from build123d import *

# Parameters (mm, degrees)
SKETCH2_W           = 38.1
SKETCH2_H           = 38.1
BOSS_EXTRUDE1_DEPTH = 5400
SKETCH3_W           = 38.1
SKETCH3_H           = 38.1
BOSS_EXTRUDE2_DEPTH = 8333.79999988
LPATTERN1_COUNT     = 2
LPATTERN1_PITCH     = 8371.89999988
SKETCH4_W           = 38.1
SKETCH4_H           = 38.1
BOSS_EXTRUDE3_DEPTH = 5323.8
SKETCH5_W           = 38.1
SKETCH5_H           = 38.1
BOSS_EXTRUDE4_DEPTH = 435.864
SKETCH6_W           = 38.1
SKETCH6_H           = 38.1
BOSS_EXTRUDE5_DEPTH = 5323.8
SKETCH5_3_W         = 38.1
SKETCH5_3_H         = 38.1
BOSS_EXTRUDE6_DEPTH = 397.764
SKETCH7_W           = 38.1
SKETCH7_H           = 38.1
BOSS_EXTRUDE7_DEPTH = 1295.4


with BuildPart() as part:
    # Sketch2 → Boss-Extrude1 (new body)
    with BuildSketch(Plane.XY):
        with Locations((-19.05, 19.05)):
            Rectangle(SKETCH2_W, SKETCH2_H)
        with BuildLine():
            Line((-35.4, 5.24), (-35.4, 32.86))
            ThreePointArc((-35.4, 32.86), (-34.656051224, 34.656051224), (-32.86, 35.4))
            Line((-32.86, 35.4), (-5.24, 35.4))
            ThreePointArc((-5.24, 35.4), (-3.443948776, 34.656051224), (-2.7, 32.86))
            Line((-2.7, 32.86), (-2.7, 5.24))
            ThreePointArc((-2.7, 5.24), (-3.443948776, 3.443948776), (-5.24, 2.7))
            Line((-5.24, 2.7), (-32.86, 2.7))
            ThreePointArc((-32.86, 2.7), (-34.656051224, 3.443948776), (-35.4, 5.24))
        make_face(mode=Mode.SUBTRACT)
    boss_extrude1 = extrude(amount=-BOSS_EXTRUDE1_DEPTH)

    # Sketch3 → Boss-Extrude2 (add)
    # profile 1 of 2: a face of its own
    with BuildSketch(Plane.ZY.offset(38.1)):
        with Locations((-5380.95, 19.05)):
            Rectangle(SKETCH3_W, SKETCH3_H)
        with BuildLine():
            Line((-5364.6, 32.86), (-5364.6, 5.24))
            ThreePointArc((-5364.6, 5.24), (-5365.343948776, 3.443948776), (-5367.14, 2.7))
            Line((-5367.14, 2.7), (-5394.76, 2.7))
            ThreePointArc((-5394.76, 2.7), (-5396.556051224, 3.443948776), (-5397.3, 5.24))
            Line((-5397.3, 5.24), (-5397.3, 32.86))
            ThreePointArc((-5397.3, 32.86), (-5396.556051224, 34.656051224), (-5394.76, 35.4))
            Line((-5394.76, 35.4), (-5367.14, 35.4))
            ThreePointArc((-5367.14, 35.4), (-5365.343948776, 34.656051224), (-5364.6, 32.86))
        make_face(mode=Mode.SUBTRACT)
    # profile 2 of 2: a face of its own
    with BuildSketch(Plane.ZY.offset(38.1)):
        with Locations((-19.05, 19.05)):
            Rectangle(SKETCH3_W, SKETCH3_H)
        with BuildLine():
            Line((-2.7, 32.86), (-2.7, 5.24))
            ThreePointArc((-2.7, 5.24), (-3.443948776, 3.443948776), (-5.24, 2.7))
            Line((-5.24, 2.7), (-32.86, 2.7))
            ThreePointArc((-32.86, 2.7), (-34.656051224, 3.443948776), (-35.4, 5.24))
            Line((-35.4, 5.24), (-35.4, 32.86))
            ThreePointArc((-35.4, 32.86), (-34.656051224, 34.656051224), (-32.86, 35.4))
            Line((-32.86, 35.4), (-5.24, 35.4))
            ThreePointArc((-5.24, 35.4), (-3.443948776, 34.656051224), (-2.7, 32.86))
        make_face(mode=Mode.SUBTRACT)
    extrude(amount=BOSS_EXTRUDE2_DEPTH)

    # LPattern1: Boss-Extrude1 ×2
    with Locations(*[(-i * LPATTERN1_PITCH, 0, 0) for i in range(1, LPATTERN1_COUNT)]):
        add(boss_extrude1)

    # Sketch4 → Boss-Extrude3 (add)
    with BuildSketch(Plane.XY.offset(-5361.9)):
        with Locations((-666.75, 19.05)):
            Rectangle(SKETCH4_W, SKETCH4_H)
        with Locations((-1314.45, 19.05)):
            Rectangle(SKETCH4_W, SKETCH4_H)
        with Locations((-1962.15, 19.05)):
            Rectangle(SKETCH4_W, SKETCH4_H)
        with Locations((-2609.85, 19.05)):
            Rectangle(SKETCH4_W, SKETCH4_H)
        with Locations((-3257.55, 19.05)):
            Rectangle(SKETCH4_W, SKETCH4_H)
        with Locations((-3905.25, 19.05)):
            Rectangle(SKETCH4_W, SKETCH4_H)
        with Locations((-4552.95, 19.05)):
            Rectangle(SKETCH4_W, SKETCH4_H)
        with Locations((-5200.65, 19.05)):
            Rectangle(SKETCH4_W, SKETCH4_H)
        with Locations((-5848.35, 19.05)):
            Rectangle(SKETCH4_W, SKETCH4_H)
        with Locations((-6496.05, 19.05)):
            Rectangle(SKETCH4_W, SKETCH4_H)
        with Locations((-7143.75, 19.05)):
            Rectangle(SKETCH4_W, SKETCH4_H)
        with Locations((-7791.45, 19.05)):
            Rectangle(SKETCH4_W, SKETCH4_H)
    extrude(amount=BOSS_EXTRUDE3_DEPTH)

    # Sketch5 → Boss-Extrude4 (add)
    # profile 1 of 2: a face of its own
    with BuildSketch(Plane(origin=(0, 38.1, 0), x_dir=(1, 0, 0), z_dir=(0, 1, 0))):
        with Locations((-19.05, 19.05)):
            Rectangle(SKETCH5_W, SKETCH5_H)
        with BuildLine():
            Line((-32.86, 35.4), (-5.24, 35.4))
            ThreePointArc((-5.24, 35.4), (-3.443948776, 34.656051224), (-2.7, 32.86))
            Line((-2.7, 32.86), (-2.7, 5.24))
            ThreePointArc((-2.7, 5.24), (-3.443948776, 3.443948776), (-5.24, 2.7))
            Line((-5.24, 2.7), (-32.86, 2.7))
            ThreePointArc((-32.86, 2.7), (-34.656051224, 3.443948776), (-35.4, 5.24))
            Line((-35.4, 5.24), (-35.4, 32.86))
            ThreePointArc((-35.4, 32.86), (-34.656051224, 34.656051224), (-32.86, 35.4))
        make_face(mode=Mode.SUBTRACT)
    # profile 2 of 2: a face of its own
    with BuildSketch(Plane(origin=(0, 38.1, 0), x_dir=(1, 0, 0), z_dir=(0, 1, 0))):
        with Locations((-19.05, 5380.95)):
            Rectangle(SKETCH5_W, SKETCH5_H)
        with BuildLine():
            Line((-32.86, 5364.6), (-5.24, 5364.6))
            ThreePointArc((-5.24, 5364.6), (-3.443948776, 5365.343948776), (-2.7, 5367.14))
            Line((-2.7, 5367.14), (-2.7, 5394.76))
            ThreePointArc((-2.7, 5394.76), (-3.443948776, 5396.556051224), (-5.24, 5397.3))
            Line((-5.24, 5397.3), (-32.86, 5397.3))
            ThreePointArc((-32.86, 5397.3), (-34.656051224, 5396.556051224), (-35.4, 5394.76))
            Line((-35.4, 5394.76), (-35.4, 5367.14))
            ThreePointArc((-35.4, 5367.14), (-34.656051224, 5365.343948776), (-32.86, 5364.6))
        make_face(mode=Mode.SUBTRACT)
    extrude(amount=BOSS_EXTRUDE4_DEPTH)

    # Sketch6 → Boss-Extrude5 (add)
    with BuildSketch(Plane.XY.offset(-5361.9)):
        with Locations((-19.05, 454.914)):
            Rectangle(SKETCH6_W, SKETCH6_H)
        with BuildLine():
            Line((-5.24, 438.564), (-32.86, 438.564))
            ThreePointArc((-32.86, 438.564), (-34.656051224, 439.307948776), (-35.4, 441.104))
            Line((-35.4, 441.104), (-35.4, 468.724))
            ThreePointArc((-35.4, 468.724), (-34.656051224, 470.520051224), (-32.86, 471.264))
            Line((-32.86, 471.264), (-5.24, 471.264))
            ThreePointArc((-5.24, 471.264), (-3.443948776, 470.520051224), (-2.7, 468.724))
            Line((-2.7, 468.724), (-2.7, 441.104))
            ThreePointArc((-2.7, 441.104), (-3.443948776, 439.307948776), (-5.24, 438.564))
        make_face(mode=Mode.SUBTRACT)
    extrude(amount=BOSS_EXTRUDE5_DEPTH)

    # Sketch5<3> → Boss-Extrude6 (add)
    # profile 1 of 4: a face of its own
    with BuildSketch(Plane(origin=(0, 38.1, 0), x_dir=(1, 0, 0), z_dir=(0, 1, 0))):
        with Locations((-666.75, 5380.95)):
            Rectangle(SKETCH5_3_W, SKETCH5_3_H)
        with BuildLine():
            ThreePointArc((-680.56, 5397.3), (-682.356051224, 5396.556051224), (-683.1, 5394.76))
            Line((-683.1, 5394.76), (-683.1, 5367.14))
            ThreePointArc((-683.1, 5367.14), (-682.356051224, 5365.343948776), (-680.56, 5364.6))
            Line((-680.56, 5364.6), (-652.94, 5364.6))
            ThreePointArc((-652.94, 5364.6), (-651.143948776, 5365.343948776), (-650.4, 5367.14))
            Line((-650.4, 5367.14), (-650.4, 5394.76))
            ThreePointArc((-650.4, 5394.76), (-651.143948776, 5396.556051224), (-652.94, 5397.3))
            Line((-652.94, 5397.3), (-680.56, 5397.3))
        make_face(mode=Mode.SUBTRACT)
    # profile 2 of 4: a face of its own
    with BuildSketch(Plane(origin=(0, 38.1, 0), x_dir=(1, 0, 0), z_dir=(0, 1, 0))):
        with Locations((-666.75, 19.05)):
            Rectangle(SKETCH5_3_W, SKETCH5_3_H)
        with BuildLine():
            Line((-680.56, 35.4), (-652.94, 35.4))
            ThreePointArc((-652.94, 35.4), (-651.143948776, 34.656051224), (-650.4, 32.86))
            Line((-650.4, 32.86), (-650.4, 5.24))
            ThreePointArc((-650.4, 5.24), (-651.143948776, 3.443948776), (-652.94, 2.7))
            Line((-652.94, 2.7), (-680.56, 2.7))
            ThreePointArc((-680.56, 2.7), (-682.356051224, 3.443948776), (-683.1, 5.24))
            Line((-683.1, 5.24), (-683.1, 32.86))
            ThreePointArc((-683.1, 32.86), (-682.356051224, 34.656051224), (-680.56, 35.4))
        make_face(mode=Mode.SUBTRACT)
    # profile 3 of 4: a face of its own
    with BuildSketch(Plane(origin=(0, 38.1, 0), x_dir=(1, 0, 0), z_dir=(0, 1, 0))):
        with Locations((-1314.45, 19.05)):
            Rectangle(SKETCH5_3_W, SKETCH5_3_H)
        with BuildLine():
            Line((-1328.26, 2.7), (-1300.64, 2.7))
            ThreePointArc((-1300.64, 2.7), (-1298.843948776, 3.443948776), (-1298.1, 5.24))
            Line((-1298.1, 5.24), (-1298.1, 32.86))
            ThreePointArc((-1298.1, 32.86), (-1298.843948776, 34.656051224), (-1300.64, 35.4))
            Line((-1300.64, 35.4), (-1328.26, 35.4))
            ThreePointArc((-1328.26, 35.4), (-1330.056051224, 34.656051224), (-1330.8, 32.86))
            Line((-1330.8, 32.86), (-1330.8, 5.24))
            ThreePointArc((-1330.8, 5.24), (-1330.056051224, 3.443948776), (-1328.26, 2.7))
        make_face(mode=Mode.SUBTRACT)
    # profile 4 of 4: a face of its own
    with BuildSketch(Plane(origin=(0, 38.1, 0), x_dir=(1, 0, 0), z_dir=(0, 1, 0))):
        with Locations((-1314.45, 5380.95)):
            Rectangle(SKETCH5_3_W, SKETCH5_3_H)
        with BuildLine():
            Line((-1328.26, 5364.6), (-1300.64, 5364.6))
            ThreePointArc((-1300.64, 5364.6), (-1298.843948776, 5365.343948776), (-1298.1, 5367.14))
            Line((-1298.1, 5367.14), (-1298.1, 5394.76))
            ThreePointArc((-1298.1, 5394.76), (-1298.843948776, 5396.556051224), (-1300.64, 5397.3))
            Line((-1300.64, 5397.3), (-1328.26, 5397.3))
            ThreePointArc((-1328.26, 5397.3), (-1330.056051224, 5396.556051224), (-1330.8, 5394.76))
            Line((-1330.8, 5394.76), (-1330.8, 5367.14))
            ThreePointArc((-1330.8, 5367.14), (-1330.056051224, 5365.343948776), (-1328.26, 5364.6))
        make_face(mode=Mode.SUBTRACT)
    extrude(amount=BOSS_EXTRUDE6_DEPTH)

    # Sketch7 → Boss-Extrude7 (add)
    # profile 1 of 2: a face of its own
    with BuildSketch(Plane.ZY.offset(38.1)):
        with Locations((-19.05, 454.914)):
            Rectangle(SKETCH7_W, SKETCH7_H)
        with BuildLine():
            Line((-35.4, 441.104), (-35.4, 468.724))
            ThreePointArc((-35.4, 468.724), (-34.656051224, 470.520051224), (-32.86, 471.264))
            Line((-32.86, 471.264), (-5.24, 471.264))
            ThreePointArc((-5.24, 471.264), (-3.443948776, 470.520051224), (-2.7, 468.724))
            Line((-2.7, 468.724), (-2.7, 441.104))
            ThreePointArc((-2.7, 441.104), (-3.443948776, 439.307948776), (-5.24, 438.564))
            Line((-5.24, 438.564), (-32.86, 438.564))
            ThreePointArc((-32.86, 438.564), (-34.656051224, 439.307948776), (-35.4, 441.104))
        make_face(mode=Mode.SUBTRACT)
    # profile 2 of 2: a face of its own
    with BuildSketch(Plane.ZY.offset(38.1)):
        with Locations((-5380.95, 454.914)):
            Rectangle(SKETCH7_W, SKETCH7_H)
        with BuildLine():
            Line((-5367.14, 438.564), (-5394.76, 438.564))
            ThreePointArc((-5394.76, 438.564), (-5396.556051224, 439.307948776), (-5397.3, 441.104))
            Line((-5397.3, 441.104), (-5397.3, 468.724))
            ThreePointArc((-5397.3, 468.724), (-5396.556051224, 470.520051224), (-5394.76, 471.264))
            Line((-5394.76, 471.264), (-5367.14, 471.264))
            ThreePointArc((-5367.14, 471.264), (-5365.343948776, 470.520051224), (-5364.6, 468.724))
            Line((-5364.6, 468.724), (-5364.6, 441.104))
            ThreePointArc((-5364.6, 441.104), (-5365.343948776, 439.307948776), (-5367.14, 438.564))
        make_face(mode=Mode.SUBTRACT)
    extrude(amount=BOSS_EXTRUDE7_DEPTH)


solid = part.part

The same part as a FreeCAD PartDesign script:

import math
import FreeCAD as App
import Part
import Sketcher
from FreeCAD import Vector
Q = App.Units.Quantity


def add_polygon(sketch, points):
    """Adds a closed chain of lines whose ends are joined by coincident constraints."""
    first, n = sketch.GeometryCount, len(points)
    for a, b in zip(points, points[1:] + points[:1]):
        sketch.addGeometry(Part.LineSegment(App.Vector(*a, 0), App.Vector(*b, 0)), False)
    for i in range(n):
        sketch.addConstraint(Sketcher.Constraint("Coincident", first + i, 2, first + (i + 1) % n, 1))

doc = App.newDocument("Part")
body = doc.addObject("PartDesign::Body", "Body")

sketch1 = body.newObject("Sketcher::SketchObject", "Sketch")
sketch1.AttachmentSupport = (doc.getObject("XY_Plane"), [""])
sketch1.MapMode = "FlatFace"
add_polygon(sketch1, [(-38.1, 38.1), (-38.1, 0), (0, 0), (0, 38.1)])
sketch1.addGeometry(Part.ArcOfCircle(Part.Circle(Vector(-32.9, 5.2, 0), Vector(0, 0, 1), 2.5), math.radians(-180), math.radians(-90)), False)
sketch1.addGeometry(Part.LineSegment(Vector(-35.4, 5.2, 0), Vector(-35.4, 32.9, 0)), False)
sketch1.addGeometry(Part.ArcOfCircle(Part.Circle(Vector(-32.9, 32.9, 0), Vector(0, 0, 1), 2.5), math.radians(90), math.radians(180)), False)
sketch1.addGeometry(Part.LineSegment(Vector(-32.9, 35.4, 0), Vector(-5.2, 35.4, 0)), False)
sketch1.addGeometry(Part.ArcOfCircle(Part.Circle(Vector(-5.2, 32.9, 0), Vector(0, 0, 1), 2.5), math.radians(0), math.radians(90)), False)
sketch1.addGeometry(Part.LineSegment(Vector(-2.7, 32.9, 0), Vector(-2.7, 5.2, 0)), False)
sketch1.addGeometry(Part.ArcOfCircle(Part.Circle(Vector(-5.2, 5.2, 0), Vector(0, 0, 1), 2.5), math.radians(-90), math.radians(0)), False)
sketch1.addGeometry(Part.LineSegment(Vector(-5.2, 2.7, 0), Vector(-32.9, 2.7, 0)), False)
sketch1.addConstraint([
    Sketcher.Constraint("Tangent", 4, 1, 5, 1),
    Sketcher.Constraint("Tangent", 5, 2, 6, 2),
    Sketcher.Constraint("Tangent", 6, 1, 7, 1),
    Sketcher.Constraint("Tangent", 7, 2, 8, 2),
    Sketcher.Constraint("Tangent", 8, 1, 9, 1),
    Sketcher.Constraint("Tangent", 9, 2, 10, 2),
    Sketcher.Constraint("Tangent", 10, 1, 11, 1),
    Sketcher.Constraint("Tangent", 11, 2, 4, 2),
    Sketcher.Constraint("Vertical", 0),
    Sketcher.Constraint("Horizontal", 1),
    Sketcher.Constraint("Vertical", 2),
    Sketcher.Constraint("Horizontal", 3),
    Sketcher.Constraint("Vertical", 5),
    Sketcher.Constraint("Horizontal", 7),
    Sketcher.Constraint("Vertical", 9),
    Sketcher.Constraint("Horizontal", 11),
    Sketcher.Constraint("Coincident", 1, 2, -1, 1),
    Sketcher.Constraint("Equal", 4, 6),
    Sketcher.Constraint("Equal", 6, 8),
    Sketcher.Constraint("Equal", 8, 10),
    Sketcher.Constraint("Equal", 3, 0),
    Sketcher.Constraint("Equal", 11, 5),
    Sketcher.Constraint("Radius", 4, Q("0.1 in")),
    Sketcher.Constraint("DistanceX", 1, 1, 1, 2, Q("1.5 in")),
    Sketcher.Constraint("DistanceX", 7, 1, 7, 2, Q("27.62 mm")),
    Sketcher.Constraint("DistanceX", 4, 3, -1, 1, Q("32.86 mm")),
    Sketcher.Constraint("DistanceY", -1, 1, 4, 3, Q("5.24 mm")),
])
pad1 = body.newObject("PartDesign::Pad", "Pad")
pad1.Profile = sketch1
pad1.Length = 5400
pad1.Reversed = True

sketch2 = body.newObject("Sketcher::SketchObject", "Sketch001")
sketch2.AttachmentSupport = (doc.getObject("YZ_Plane"), [""])
sketch2.MapMode = "FlatFace"
sketch2.AttachmentOffset = App.Placement(Vector(0, 0, -1.5 * 25.4), App.Rotation())
add_polygon(sketch2, [(38.1, -5400), (0, -5400), (0, -5361.9), (38.1, -5361.9)])
sketch2.addGeometry(Part.ArcOfCircle(Part.Circle(Vector(32.9, -5367.1, 0), Vector(0, 0, 1), 2.5), math.radians(0), math.radians(90)), False)
sketch2.addGeometry(Part.LineSegment(Vector(32.9, -5364.6, 0), Vector(5.2, -5364.6, 0)), False)
sketch2.addGeometry(Part.ArcOfCircle(Part.Circle(Vector(5.2, -5367.1, 0), Vector(0, 0, 1), 2.5), math.radians(90), math.radians(180)), False)
sketch2.addGeometry(Part.LineSegment(Vector(2.7, -5367.1, 0), Vector(2.7, -5394.8, 0)), False)
sketch2.addGeometry(Part.ArcOfCircle(Part.Circle(Vector(5.2, -5394.8, 0), Vector(0, 0, 1), 2.5), math.radians(-180), math.radians(-90)), False)
sketch2.addGeometry(Part.LineSegment(Vector(5.2, -5397.3, 0), Vector(32.9, -5397.3, 0)), False)
sketch2.addGeometry(Part.ArcOfCircle(Part.Circle(Vector(32.9, -5394.8, 0), Vector(0, 0, 1), 2.5), math.radians(-90), math.radians(0)), False)
sketch2.addGeometry(Part.LineSegment(Vector(35.4, -5394.8, 0), Vector(35.4, -5367.1, 0)), False)
add_polygon(sketch2, [(38.1, -38.1), (0, -38.1), (0, 0), (38.1, 0)])
sketch2.addGeometry(Part.ArcOfCircle(Part.Circle(Vector(32.9, -5.2, 0), Vector(0, 0, 1), 2.5), math.radians(0), math.radians(90)), False)
sketch2.addGeometry(Part.LineSegment(Vector(32.9, -2.7, 0), Vector(5.2, -2.7, 0)), False)
sketch2.addGeometry(Part.ArcOfCircle(Part.Circle(Vector(5.2, -5.2, 0), Vector(0, 0, 1), 2.5), math.radians(90), math.radians(180)), False)
sketch2.addGeometry(Part.LineSegment(Vector(2.7, -5.2, 0), Vector(2.7, -32.9, 0)), False)
sketch2.addGeometry(Part.ArcOfCircle(Part.Circle(Vector(5.2, -32.9, 0), Vector(0, 0, 1), 2.5), math.radians(-180), math.radians(-90)), False)
sketch2.addGeometry(Part.LineSegment(Vector(5.2, -35.4, 0), Vector(32.9, -35.4, 0)), False)
sketch2.addGeometry(Part.ArcOfCircle(Part.Circle(Vector(32.9, -32.9, 0), Vector(0, 0, 1), 2.5), math.radians(-90), math.radians(0)), False)
sketch2.addGeometry(Part.LineSegment(Vector(35.4, -32.9, 0), Vector(35.4, -5.2, 0)), False)
sketch2.addConstraint([
    Sketcher.Constraint("Tangent", 4, 2, 5, 1),
    Sketcher.Constraint("Tangent", 5, 2, 6, 1),
    Sketcher.Constraint("Tangent", 6, 2, 7, 1),
    Sketcher.Constraint("Tangent", 7, 2, 8, 1),
    Sketcher.Constraint("Tangent", 8, 2, 9, 1),
    Sketcher.Constraint("Tangent", 9, 2, 10, 1),
    Sketcher.Constraint("Tangent", 10, 2, 11, 1),
    Sketcher.Constraint("Tangent", 11, 2, 4, 1),
    Sketcher.Constraint("Tangent", 16, 2, 17, 1),
    Sketcher.Constraint("Tangent", 17, 2, 18, 1),
    Sketcher.Constraint("Tangent", 18, 2, 19, 1),
    Sketcher.Constraint("Tangent", 19, 2, 20, 1),
    Sketcher.Constraint("Tangent", 20, 2, 21, 1),
    Sketcher.Constraint("Tangent", 21, 2, 22, 1),
    Sketcher.Constraint("Tangent", 22, 2, 23, 1),
    Sketcher.Constraint("Tangent", 23, 2, 16, 1),
    Sketcher.Constraint("Horizontal", 0),
    Sketcher.Constraint("Vertical", 1),
    Sketcher.Constraint("Horizontal", 2),
    Sketcher.Constraint("Vertical", 3),
    Sketcher.Constraint("Horizontal", 5),
    Sketcher.Constraint("Vertical", 7),
    Sketcher.Constraint("Horizontal", 9),
    Sketcher.Constraint("Vertical", 11),
    Sketcher.Constraint("Horizontal", 12),
    Sketcher.Constraint("Vertical", 13),
    Sketcher.Constraint("Horizontal", 14),
    Sketcher.Constraint("Vertical", 15),
    Sketcher.Constraint("Horizontal", 17),
    Sketcher.Constraint("Vertical", 19),
    Sketcher.Constraint("Horizontal", 21),
    Sketcher.Constraint("Vertical", 23),
    Sketcher.Constraint("Coincident", 13, 2, -1, 1),
    Sketcher.Constraint("Equal", 4, 6),
    Sketcher.Constraint("Equal", 6, 8),
    Sketcher.Constraint("Equal", 8, 10),
    Sketcher.Constraint("Equal", 10, 16),
    Sketcher.Constraint("Equal", 16, 18),
    Sketcher.Constraint("Equal", 18, 20),
    Sketcher.Constraint("Equal", 20, 22),
    Sketcher.Constraint("PointOnObject", 0, 2, -2),
    Sketcher.Constraint("Vertical", 10, 3, 16, 3),
    Sketcher.Constraint("Vertical", 8, 3, 18, 3),
    Sketcher.Constraint("Vertical", 3, 2, 14, 2),
    Sketcher.Constraint("Equal", 14, 1),
    Sketcher.Constraint("Equal", 21, 7),
    Sketcher.Constraint("Equal", 3, 13),
    Sketcher.Constraint("Equal", 11, 19),
    Sketcher.Constraint("Radius", 4, Q("0.1 in")),
    Sketcher.Constraint("DistanceX", 0, 2, 0, 1, Q("1.5 in")),
    Sketcher.Constraint("DistanceX", 5, 2, 5, 1, Q("27.62 mm")),
    Sketcher.Constraint("DistanceX", -1, 1, 4, 3, Q("32.86 mm")),
    Sketcher.Constraint("DistanceY", 4, 3, -1, 1, Q("5367.14 mm")),
    Sketcher.Constraint("DistanceY", 16, 3, -1, 1, Q("5.24 mm")),
    Sketcher.Constraint("DistanceY", 0, 2, -1, 1, Q("5400 mm")),
])
pad2 = body.newObject("PartDesign::Pad", "Pad001")
pad2.Profile = sketch2
pad2.Length = 8333.8
pad2.Reversed = True
doc.recompute()

linearpattern = body.newObject("PartDesign::LinearPattern", "LinearPattern")
linearpattern.Originals = [pad1]
linearpattern.Direction = (doc.getObject("X_Axis"), [""])
linearpattern.Mode = "offset"
linearpattern.Offset = 8371.9
linearpattern.Occurrences = 2
linearpattern.Reversed = True
body.Tip = linearpattern

sketch3 = body.newObject("Sketcher::SketchObject", "Sketch002")
sketch3.AttachmentSupport = (doc.getObject("XY_Plane"), [""])
sketch3.MapMode = "FlatFace"
sketch3.AttachmentOffset = App.Placement(Vector(0, 0, -5361.9), App.Rotation())
add_polygon(sketch3, [(-686, 38), (-686, 0), (-648, 0), (-648, 38)])
add_polygon(sketch3, [(-1334, 38), (-1334, 0), (-1295, 0), (-1295, 38)])
add_polygon(sketch3, [(-1981, 38), (-1981, 0), (-1943, 0), (-1943, 38)])
add_polygon(sketch3, [(-2629, 38), (-2629, 0), (-2591, 0), (-2591, 38)])
add_polygon(sketch3, [(-3277, 38), (-3277, 0), (-3238, 0), (-3238, 38)])
add_polygon(sketch3, [(-3924, 38), (-3924, 0), (-3886, 0), (-3886, 38)])
add_polygon(sketch3, [(-4572, 38), (-4572, 0), (-4534, 0), (-4534, 38)])
add_polygon(sketch3, [(-5220, 38), (-5220, 0), (-5182, 0), (-5182, 38)])
add_polygon(sketch3, [(-5867, 38), (-5867, 0), (-5829, 0), (-5829, 38)])
add_polygon(sketch3, [(-6515, 38), (-6515, 0), (-6477, 0), (-6477, 38)])
add_polygon(sketch3, [(-7163, 38), (-7163, 0), (-7125, 0), (-7125, 38)])
add_polygon(sketch3, [(-7810, 38), (-7810, 0), (-7772, 0), (-7772, 38)])
sketch3.addConstraint([
    Sketcher.Constraint("Vertical", 0),
    Sketcher.Constraint("Horizontal", 1),
    Sketcher.Constraint("Vertical", 2),
    Sketcher.Constraint("Horizontal", 3),
    Sketcher.Constraint("Vertical", 4),
    Sketcher.Constraint("Horizontal", 5),
    Sketcher.Constraint("Vertical", 6),
    Sketcher.Constraint("Horizontal", 7),
    Sketcher.Constraint("Vertical", 8),
    Sketcher.Constraint("Horizontal", 9),
    Sketcher.Constraint("Vertical", 10),
    Sketcher.Constraint("Horizontal", 11),
    Sketcher.Constraint("Vertical", 12),
    Sketcher.Constraint("Horizontal", 13),
    Sketcher.Constraint("Vertical", 14),
    Sketcher.Constraint("Horizontal", 15),
    Sketcher.Constraint("Vertical", 16),
    Sketcher.Constraint("Horizontal", 17),
    Sketcher.Constraint("Vertical", 18),
    Sketcher.Constraint("Horizontal", 19),
    Sketcher.Constraint("Vertical", 20),
    Sketcher.Constraint("Horizontal", 21),
    Sketcher.Constraint("Vertical", 22),
    Sketcher.Constraint("Horizontal", 23),
    Sketcher.Constraint("Vertical", 24),
    Sketcher.Constraint("Horizontal", 25),
    Sketcher.Constraint("Vertical", 26),
    Sketcher.Constraint("Horizontal", 27),
    Sketcher.Constraint("Vertical", 28),
    Sketcher.Constraint("Horizontal", 29),
    Sketcher.Constraint("Vertical", 30),
    Sketcher.Constraint("Horizontal", 31),
    Sketcher.Constraint("Vertical", 32),
    Sketcher.Constraint("Horizontal", 33),
    Sketcher.Constraint("Vertical", 34),
    Sketcher.Constraint("Horizontal", 35),
    Sketcher.Constraint("Vertical", 36),
    Sketcher.Constraint("Horizontal", 37),
    Sketcher.Constraint("Vertical", 38),
    Sketcher.Constraint("Horizontal", 39),
    Sketcher.Constraint("Vertical", 40),
    Sketcher.Constraint("Horizontal", 41),
    Sketcher.Constraint("Vertical", 42),
    Sketcher.Constraint("Horizontal", 43),
    Sketcher.Constraint("Vertical", 44),
    Sketcher.Constraint("Horizontal", 45),
    Sketcher.Constraint("Vertical", 46),
    Sketcher.Constraint("Horizontal", 47),
    Sketcher.Constraint("PointOnObject", 0, 2, -1),
    Sketcher.Constraint("PointOnObject", 4, 2, -1),
    Sketcher.Constraint("PointOnObject", 8, 2, -1),
    Sketcher.Constraint("PointOnObject", 12, 2, -1),
    Sketcher.Constraint("PointOnObject", 16, 2, -1),
    Sketcher.Constraint("PointOnObject", 20, 2, -1),
    Sketcher.Constraint("PointOnObject", 24, 2, -1),
    Sketcher.Constraint("PointOnObject", 28, 2, -1),
    Sketcher.Constraint("PointOnObject", 32, 2, -1),
    Sketcher.Constraint("PointOnObject", 36, 2, -1),
    Sketcher.Constraint("PointOnObject", 40, 2, -1),
    Sketcher.Constraint("PointOnObject", 44, 2, -1),
    Sketcher.Constraint("Horizontal", 3, 2, 6, 2),
    Sketcher.Constraint("Horizontal", 7, 2, 10, 2),
    Sketcher.Constraint("Horizontal", 11, 2, 14, 2),
    Sketcher.Constraint("Horizontal", 15, 2, 18, 2),
    Sketcher.Constraint("Horizontal", 19, 2, 22, 2),
    Sketcher.Constraint("Horizontal", 23, 2, 26, 2),
    Sketcher.Constraint("Horizontal", 27, 2, 30, 2),
    Sketcher.Constraint("Horizontal", 31, 2, 34, 2),
    Sketcher.Constraint("Horizontal", 35, 2, 38, 2),
    Sketcher.Constraint("Horizontal", 39, 2, 42, 2),
    Sketcher.Constraint("Horizontal", 43, 2, 46, 2),
    Sketcher.Constraint("Equal", 3, 5),
    Sketcher.Constraint("Equal", 7, 9),
    Sketcher.Constraint("Equal", 11, 13),
    Sketcher.Constraint("Equal", 15, 17),
    Sketcher.Constraint("Equal", 19, 21),
    Sketcher.Constraint("Equal", 23, 25),
    Sketcher.Constraint("Equal", 27, 29),
    Sketcher.Constraint("Equal", 31, 33),
    Sketcher.Constraint("Equal", 35, 37),
    Sketcher.Constraint("Equal", 39, 41),
    Sketcher.Constraint("Equal", 43, 45),
    Sketcher.Constraint("Equal", 47, 0),
    Sketcher.Constraint("DistanceX", 1, 1, 1, 2, Q("1.5 in")),
    Sketcher.Constraint("DistanceX", 0, 2, -1, 1, Q("27 in")),
    Sketcher.Constraint("DistanceX", 5, 2, -1, 1, Q("51 in")),
    Sketcher.Constraint("DistanceX", 8, 2, -1, 1, Q("78 in")),
    Sketcher.Constraint("DistanceX", 13, 2, -1, 1, Q("102 in")),
    Sketcher.Constraint("DistanceX", 16, 2, -1, 1, Q("129 in")),
    Sketcher.Constraint("DistanceX", 21, 2, -1, 1, Q("153 in")),
    Sketcher.Constraint("DistanceX", 24, 2, -1, 1, Q("180 in")),
    Sketcher.Constraint("DistanceX", 29, 2, -1, 1, Q("204 in")),
    Sketcher.Constraint("DistanceX", 32, 2, -1, 1, Q("231 in")),
    Sketcher.Constraint("DistanceX", 37, 2, -1, 1, Q("255 in")),
    Sketcher.Constraint("DistanceX", 40, 2, -1, 1, Q("282 in")),
    Sketcher.Constraint("DistanceX", 45, 2, -1, 1, Q("306 in")),
])
pad3 = body.newObject("PartDesign::Pad", "Pad002")
pad3.Profile = sketch3
pad3.Length = 5323.8

sketch4 = body.newObject("Sketcher::SketchObject", "Sketch003")
sketch4.AttachmentSupport = (doc.getObject("XZ_Plane"), [""])
sketch4.MapMode = "FlatFace"
sketch4.AttachmentOffset = App.Placement(Vector(0, 0, -1.5 * 25.4), App.Rotation())
add_polygon(sketch4, [(-38.1, -38.1), (-38.1, 0), (0, 0), (0, -38.1)])
sketch4.addGeometry(Part.ArcOfCircle(Part.Circle(Vector(-32.9, -32.9, 0), Vector(0, 0, 1), 2.5), math.radians(-180), math.radians(-90)), False)
sketch4.addGeometry(Part.LineSegment(Vector(-32.9, -35.4, 0), Vector(-5.2, -35.4, 0)), False)
sketch4.addGeometry(Part.ArcOfCircle(Part.Circle(Vector(-5.2, -32.9, 0), Vector(0, 0, 1), 2.5), math.radians(-90), math.radians(0)), False)
sketch4.addGeometry(Part.LineSegment(Vector(-2.7, -32.9, 0), Vector(-2.7, -5.2, 0)), False)
sketch4.addGeometry(Part.ArcOfCircle(Part.Circle(Vector(-5.2, -5.2, 0), Vector(0, 0, 1), 2.5), math.radians(0), math.radians(90)), False)
sketch4.addGeometry(Part.LineSegment(Vector(-5.2, -2.7, 0), Vector(-32.9, -2.7, 0)), False)
sketch4.addGeometry(Part.ArcOfCircle(Part.Circle(Vector(-32.9, -5.2, 0), Vector(0, 0, 1), 2.5), math.radians(90), math.radians(180)), False)
sketch4.addGeometry(Part.LineSegment(Vector(-35.4, -5.2, 0), Vector(-35.4, -32.9, 0)), False)
add_polygon(sketch4, [(-38.1, -5400), (-38.1, -5361.9), (0, -5361.9), (0, -5400)])
sketch4.addGeometry(Part.LineSegment(Vector(-5.2, -5364.6, 0), Vector(-32.9, -5364.6, 0)), False)
sketch4.addGeometry(Part.ArcOfCircle(Part.Circle(Vector(-32.9, -5367.1, 0), Vector(0, 0, 1), 2.5), math.radians(90), math.radians(180)), False)
sketch4.addGeometry(Part.LineSegment(Vector(-35.4, -5367.1, 0), Vector(-35.4, -5394.8, 0)), False)
sketch4.addGeometry(Part.ArcOfCircle(Part.Circle(Vector(-32.9, -5394.8, 0), Vector(0, 0, 1), 2.5), math.radians(-180), math.radians(-90)), False)
sketch4.addGeometry(Part.LineSegment(Vector(-32.9, -5397.3, 0), Vector(-5.2, -5397.3, 0)), False)
sketch4.addGeometry(Part.ArcOfCircle(Part.Circle(Vector(-5.2, -5394.8, 0), Vector(0, 0, 1), 2.5), math.radians(-90), math.radians(0)), False)
sketch4.addGeometry(Part.LineSegment(Vector(-2.7, -5394.8, 0), Vector(-2.7, -5367.1, 0)), False)
sketch4.addGeometry(Part.ArcOfCircle(Part.Circle(Vector(-5.2, -5367.1, 0), Vector(0, 0, 1), 2.5), math.radians(0), math.radians(90)), False)
sketch4.addConstraint([
    Sketcher.Constraint("Tangent", 4, 2, 5, 1),
    Sketcher.Constraint("Tangent", 5, 2, 6, 1),
    Sketcher.Constraint("Tangent", 6, 2, 7, 1),
    Sketcher.Constraint("Tangent", 7, 2, 8, 1),
    Sketcher.Constraint("Tangent", 8, 2, 9, 1),
    Sketcher.Constraint("Tangent", 9, 2, 10, 1),
    Sketcher.Constraint("Tangent", 10, 2, 11, 1),
    Sketcher.Constraint("Tangent", 11, 2, 4, 1),
    Sketcher.Constraint("Tangent", 16, 2, 17, 1),
    Sketcher.Constraint("Tangent", 17, 2, 18, 1),
    Sketcher.Constraint("Tangent", 18, 2, 19, 1),
    Sketcher.Constraint("Tangent", 19, 2, 20, 1),
    Sketcher.Constraint("Tangent", 20, 2, 21, 1),
    Sketcher.Constraint("Tangent", 21, 2, 22, 1),
    Sketcher.Constraint("Tangent", 22, 2, 23, 1),
    Sketcher.Constraint("Tangent", 23, 2, 16, 1),
    Sketcher.Constraint("Vertical", 0),
    Sketcher.Constraint("Horizontal", 1),
    Sketcher.Constraint("Vertical", 2),
    Sketcher.Constraint("Horizontal", 3),
    Sketcher.Constraint("Horizontal", 5),
    Sketcher.Constraint("Vertical", 7),
    Sketcher.Constraint("Horizontal", 9),
    Sketcher.Constraint("Vertical", 11),
    Sketcher.Constraint("Vertical", 12),
    Sketcher.Constraint("Horizontal", 13),
    Sketcher.Constraint("Vertical", 14),
    Sketcher.Constraint("Horizontal", 15),
    Sketcher.Constraint("Horizontal", 16),
    Sketcher.Constraint("Vertical", 18),
    Sketcher.Constraint("Horizontal", 20),
    Sketcher.Constraint("Vertical", 22),
    Sketcher.Constraint("Coincident", 1, 2, -1, 1),
    Sketcher.Constraint("Equal", 4, 6),
    Sketcher.Constraint("Equal", 6, 8),
    Sketcher.Constraint("Equal", 8, 10),
    Sketcher.Constraint("Equal", 10, 17),
    Sketcher.Constraint("Equal", 17, 19),
    Sketcher.Constraint("Equal", 19, 21),
    Sketcher.Constraint("Equal", 21, 23),
    Sketcher.Constraint("PointOnObject", 13, 2, -2),
    Sketcher.Constraint("Vertical", 10, 3, 17, 3),
    Sketcher.Constraint("Vertical", 8, 3, 21, 3),
    Sketcher.Constraint("Vertical", 3, 2, 12, 2),
    Sketcher.Constraint("Equal", 15, 0),
    Sketcher.Constraint("Equal", 20, 7),
    Sketcher.Constraint("Equal", 2, 12),
    Sketcher.Constraint("Equal", 11, 18),
    Sketcher.Constraint("Radius", 4, Q("0.1 in")),
    Sketcher.Constraint("DistanceX", 1, 1, 1, 2, Q("1.5 in")),
    Sketcher.Constraint("DistanceX", 5, 1, 5, 2, Q("27.62 mm")),
    Sketcher.Constraint("DistanceX", 4, 3, -1, 1, Q("32.86 mm")),
    Sketcher.Constraint("DistanceY", 4, 3, -1, 1, Q("32.86 mm")),
    Sketcher.Constraint("DistanceY", 17, 3, -1, 1, Q("5367.14 mm")),
    Sketcher.Constraint("DistanceY", 12, 2, -1, 1, Q("5361.9 mm")),
])
pad4 = body.newObject("PartDesign::Pad", "Pad003")
pad4.Profile = sketch4
pad4.Length = Q("17.16 in")
pad4.Reversed = True

sketch5 = body.newObject("Sketcher::SketchObject", "Sketch004")
sketch5.AttachmentSupport = (doc.getObject("XY_Plane"), [""])
sketch5.MapMode = "FlatFace"
sketch5.AttachmentOffset = App.Placement(Vector(0, 0, -5361.9), App.Rotation())
add_polygon(sketch5, [(-38.1, 474), (-38.1, 435.9), (0, 435.9), (0, 474)])
sketch5.addGeometry(Part.ArcOfCircle(Part.Circle(Vector(-5.2, 441.1, 0), Vector(0, 0, 1), 2.5), math.radians(-90), math.radians(0)), False)
sketch5.addGeometry(Part.LineSegment(Vector(-5.2, 438.6, 0), Vector(-32.9, 438.6, 0)), False)
sketch5.addGeometry(Part.ArcOfCircle(Part.Circle(Vector(-32.9, 441.1, 0), Vector(0, 0, 1), 2.5), math.radians(-180), math.radians(-90)), False)
sketch5.addGeometry(Part.LineSegment(Vector(-35.4, 441.1, 0), Vector(-35.4, 468.7, 0)), False)
sketch5.addGeometry(Part.ArcOfCircle(Part.Circle(Vector(-32.9, 468.7, 0), Vector(0, 0, 1), 2.5), math.radians(90), math.radians(180)), False)
sketch5.addGeometry(Part.LineSegment(Vector(-32.9, 471.3, 0), Vector(-5.2, 471.3, 0)), False)
sketch5.addGeometry(Part.ArcOfCircle(Part.Circle(Vector(-5.2, 468.7, 0), Vector(0, 0, 1), 2.5), math.radians(0), math.radians(90)), False)
sketch5.addGeometry(Part.LineSegment(Vector(-2.7, 468.7, 0), Vector(-2.7, 441.1, 0)), False)
sketch5.addConstraint([
    Sketcher.Constraint("Tangent", 4, 1, 5, 1),
    Sketcher.Constraint("Tangent", 5, 2, 6, 2),
    Sketcher.Constraint("Tangent", 6, 1, 7, 1),
    Sketcher.Constraint("Tangent", 7, 2, 8, 2),
    Sketcher.Constraint("Tangent", 8, 1, 9, 1),
    Sketcher.Constraint("Tangent", 9, 2, 10, 2),
    Sketcher.Constraint("Tangent", 10, 1, 11, 1),
    Sketcher.Constraint("Tangent", 11, 2, 4, 2),
    Sketcher.Constraint("Vertical", 0),
    Sketcher.Constraint("Horizontal", 1),
    Sketcher.Constraint("Vertical", 2),
    Sketcher.Constraint("Horizontal", 3),
    Sketcher.Constraint("Horizontal", 5),
    Sketcher.Constraint("Vertical", 7),
    Sketcher.Constraint("Horizontal", 9),
    Sketcher.Constraint("Vertical", 11),
    Sketcher.Constraint("Equal", 4, 6),
    Sketcher.Constraint("Equal", 6, 8),
    Sketcher.Constraint("Equal", 8, 10),
    Sketcher.Constraint("PointOnObject", 1, 2, -2),
    Sketcher.Constraint("Equal", 3, 0),
    Sketcher.Constraint("Equal", 9, 7),
    Sketcher.Constraint("Radius", 4, Q("0.1 in")),
    Sketcher.Constraint("DistanceX", 1, 1, 1, 2, Q("1.5 in")),
    Sketcher.Constraint("DistanceY", -1, 1, 0, 2, Q("17.16 in")),
    Sketcher.Constraint("DistanceX", 5, 2, 5, 1, Q("27.62 mm")),
    Sketcher.Constraint("DistanceX", 4, 3, -1, 1, Q("5.24 mm")),
    Sketcher.Constraint("DistanceY", -1, 1, 4, 3, Q("441.104 mm")),
])
pad5 = body.newObject("PartDesign::Pad", "Pad004")
pad5.Profile = sketch5
pad5.Length = 5323.8

sketch6 = body.newObject("Sketcher::SketchObject", "Sketch005")
sketch6.AttachmentSupport = (doc.getObject("XZ_Plane"), [""])
sketch6.MapMode = "FlatFace"
sketch6.AttachmentOffset = App.Placement(Vector(0, 0, -1.5 * 25.4), App.Rotation())
add_polygon(sketch6, [(-685.8, -5400), (-685.8, -5361.9), (-647.7, -5361.9), (-647.7, -5400)])
sketch6.addGeometry(Part.ArcOfCircle(Part.Circle(Vector(-680.6, -5394.8, 0), Vector(0, 0, 1), 2.5), math.radians(-180), math.radians(-90)), False)
sketch6.addGeometry(Part.LineSegment(Vector(-680.6, -5397.3, 0), Vector(-652.9, -5397.3, 0)), False)
sketch6.addGeometry(Part.ArcOfCircle(Part.Circle(Vector(-652.9, -5394.8, 0), Vector(0, 0, 1), 2.5), math.radians(-90), math.radians(0)), False)
sketch6.addGeometry(Part.LineSegment(Vector(-650.4, -5394.8, 0), Vector(-650.4, -5367.1, 0)), False)
sketch6.addGeometry(Part.ArcOfCircle(Part.Circle(Vector(-652.9, -5367.1, 0), Vector(0, 0, 1), 2.5), math.radians(0), math.radians(90)), False)
sketch6.addGeometry(Part.LineSegment(Vector(-652.9, -5364.6, 0), Vector(-680.6, -5364.6, 0)), False)
sketch6.addGeometry(Part.ArcOfCircle(Part.Circle(Vector(-680.6, -5367.1, 0), Vector(0, 0, 1), 2.5), math.radians(90), math.radians(180)), False)
sketch6.addGeometry(Part.LineSegment(Vector(-683.1, -5367.1, 0), Vector(-683.1, -5394.8, 0)), False)
add_polygon(sketch6, [(-685.8, -38.1), (-685.8, 0), (-647.7, 0), (-647.7, -38.1)])
sketch6.addGeometry(Part.ArcOfCircle(Part.Circle(Vector(-680.6, -32.9, 0), Vector(0, 0, 1), 2.5), math.radians(-180), math.radians(-90)), False)
sketch6.addGeometry(Part.LineSegment(Vector(-680.6, -35.4, 0), Vector(-652.9, -35.4, 0)), False)
sketch6.addGeometry(Part.ArcOfCircle(Part.Circle(Vector(-652.9, -32.9, 0), Vector(0, 0, 1), 2.5), math.radians(-90), math.radians(0)), False)
sketch6.addGeometry(Part.LineSegment(Vector(-650.4, -32.9, 0), Vector(-650.4, -5.2, 0)), False)
sketch6.addGeometry(Part.ArcOfCircle(Part.Circle(Vector(-652.9, -5.2, 0), Vector(0, 0, 1), 2.5), math.radians(0), math.radians(90)), False)
sketch6.addGeometry(Part.LineSegment(Vector(-652.9, -2.7, 0), Vector(-680.6, -2.7, 0)), False)
sketch6.addGeometry(Part.ArcOfCircle(Part.Circle(Vector(-680.6, -5.2, 0), Vector(0, 0, 1), 2.5), math.radians(90), math.radians(180)), False)
sketch6.addGeometry(Part.LineSegment(Vector(-683.1, -5.2, 0), Vector(-683.1, -32.9, 0)), False)
add_polygon(sketch6, [(-1333.5, -38.1), (-1333.5, 0), (-1295.4, 0), (-1295.4, -38.1)])
sketch6.addGeometry(Part.LineSegment(Vector(-1300.6, -2.7, 0), Vector(-1328.3, -2.7, 0)), False)
sketch6.addGeometry(Part.ArcOfCircle(Part.Circle(Vector(-1328.3, -5.2, 0), Vector(0, 0, 1), 2.5), math.radians(90), math.radians(180)), False)
sketch6.addGeometry(Part.LineSegment(Vector(-1330.8, -5.2, 0), Vector(-1330.8, -32.9, 0)), False)
sketch6.addGeometry(Part.ArcOfCircle(Part.Circle(Vector(-1328.3, -32.9, 0), Vector(0, 0, 1), 2.5), math.radians(-180), math.radians(-90)), False)
sketch6.addGeometry(Part.LineSegment(Vector(-1328.3, -35.4, 0), Vector(-1300.6, -35.4, 0)), False)
sketch6.addGeometry(Part.ArcOfCircle(Part.Circle(Vector(-1300.6, -32.9, 0), Vector(0, 0, 1), 2.5), math.radians(-90), math.radians(0)), False)
sketch6.addGeometry(Part.LineSegment(Vector(-1298.1, -32.9, 0), Vector(-1298.1, -5.2, 0)), False)
sketch6.addGeometry(Part.ArcOfCircle(Part.Circle(Vector(-1300.6, -5.2, 0), Vector(0, 0, 1), 2.5), math.radians(0), math.radians(90)), False)
add_polygon(sketch6, [(-1333.5, -5400), (-1333.5, -5361.9), (-1295.4, -5361.9), (-1295.4, -5400)])
sketch6.addGeometry(Part.LineSegment(Vector(-1300.6, -5364.6, 0), Vector(-1328.3, -5364.6, 0)), False)
sketch6.addGeometry(Part.ArcOfCircle(Part.Circle(Vector(-1328.3, -5367.1, 0), Vector(0, 0, 1), 2.5), math.radians(90), math.radians(180)), False)
sketch6.addGeometry(Part.LineSegment(Vector(-1330.8, -5367.1, 0), Vector(-1330.8, -5394.8, 0)), False)
sketch6.addGeometry(Part.ArcOfCircle(Part.Circle(Vector(-1328.3, -5394.8, 0), Vector(0, 0, 1), 2.5), math.radians(-180), math.radians(-90)), False)
sketch6.addGeometry(Part.LineSegment(Vector(-1328.3, -5397.3, 0), Vector(-1300.6, -5397.3, 0)), False)
sketch6.addGeometry(Part.ArcOfCircle(Part.Circle(Vector(-1300.6, -5394.8, 0), Vector(0, 0, 1), 2.5), math.radians(-90), math.radians(0)), False)
sketch6.addGeometry(Part.LineSegment(Vector(-1298.1, -5394.8, 0), Vector(-1298.1, -5367.1, 0)), False)
sketch6.addGeometry(Part.ArcOfCircle(Part.Circle(Vector(-1300.6, -5367.1, 0), Vector(0, 0, 1), 2.5), math.radians(0), math.radians(90)), False)
sketch6.addConstraint([
    Sketcher.Constraint("Tangent", 4, 2, 5, 1),
    Sketcher.Constraint("Tangent", 5, 2, 6, 1),
    Sketcher.Constraint("Tangent", 6, 2, 7, 1),
    Sketcher.Constraint("Tangent", 7, 2, 8, 1),
    Sketcher.Constraint("Tangent", 8, 2, 9, 1),
    Sketcher.Constraint("Tangent", 9, 2, 10, 1),
    Sketcher.Constraint("Tangent", 10, 2, 11, 1),
    Sketcher.Constraint("Tangent", 11, 2, 4, 1),
    Sketcher.Constraint("Tangent", 16, 2, 17, 1),
    Sketcher.Constraint("Tangent", 17, 2, 18, 1),
    Sketcher.Constraint("Tangent", 18, 2, 19, 1),
    Sketcher.Constraint("Tangent", 19, 2, 20, 1),
    Sketcher.Constraint("Tangent", 20, 2, 21, 1),
    Sketcher.Constraint("Tangent", 21, 2, 22, 1),
    Sketcher.Constraint("Tangent", 22, 2, 23, 1),
    Sketcher.Constraint("Tangent", 23, 2, 16, 1),
    Sketcher.Constraint("Tangent", 28, 2, 29, 1),
    Sketcher.Constraint("Tangent", 29, 2, 30, 1),
    Sketcher.Constraint("Tangent", 30, 2, 31, 1),
    Sketcher.Constraint("Tangent", 31, 2, 32, 1),
    Sketcher.Constraint("Tangent", 32, 2, 33, 1),
    Sketcher.Constraint("Tangent", 33, 2, 34, 1),
    Sketcher.Constraint("Tangent", 34, 2, 35, 1),
    Sketcher.Constraint("Tangent", 35, 2, 28, 1),
    Sketcher.Constraint("Tangent", 40, 2, 41, 1),
    Sketcher.Constraint("Tangent", 41, 2, 42, 1),
    Sketcher.Constraint("Tangent", 42, 2, 43, 1),
    Sketcher.Constraint("Tangent", 43, 2, 44, 1),
    Sketcher.Constraint("Tangent", 44, 2, 45, 1),
    Sketcher.Constraint("Tangent", 45, 2, 46, 1),
    Sketcher.Constraint("Tangent", 46, 2, 47, 1),
    Sketcher.Constraint("Tangent", 47, 2, 40, 1),
    Sketcher.Constraint("Vertical", 0),
    Sketcher.Constraint("Horizontal", 1),
    Sketcher.Constraint("Vertical", 2),
    Sketcher.Constraint("Horizontal", 3),
    Sketcher.Constraint("Horizontal", 5),
    Sketcher.Constraint("Vertical", 7),
    Sketcher.Constraint("Horizontal", 9),
    Sketcher.Constraint("Vertical", 11),
    Sketcher.Constraint("Vertical", 12),
    Sketcher.Constraint("Horizontal", 13),
    Sketcher.Constraint("Vertical", 14),
    Sketcher.Constraint("Horizontal", 15),
    Sketcher.Constraint("Horizontal", 17),
    Sketcher.Constraint("Vertical", 19),
    Sketcher.Constraint("Horizontal", 21),
    Sketcher.Constraint("Vertical", 23),
    Sketcher.Constraint("Vertical", 24),
    Sketcher.Constraint("Horizontal", 25),
    Sketcher.Constraint("Vertical", 26),
    Sketcher.Constraint("Horizontal", 27),
    Sketcher.Constraint("Horizontal", 28),
    Sketcher.Constraint("Vertical", 30),
    Sketcher.Constraint("Horizontal", 32),
    Sketcher.Constraint("Vertical", 34),
    Sketcher.Constraint("Vertical", 36),
    Sketcher.Constraint("Horizontal", 37),
    Sketcher.Constraint("Vertical", 38),
    Sketcher.Constraint("Horizontal", 39),
    Sketcher.Constraint("Horizontal", 40),
    Sketcher.Constraint("Vertical", 42),
    Sketcher.Constraint("Horizontal", 44),
    Sketcher.Constraint("Vertical", 46),
    Sketcher.Constraint("Equal", 4, 6),
    Sketcher.Constraint("Equal", 6, 8),
    Sketcher.Constraint("Equal", 8, 10),
    Sketcher.Constraint("Equal", 10, 16),
    Sketcher.Constraint("Equal", 16, 18),
    Sketcher.Constraint("Equal", 18, 20),
    Sketcher.Constraint("Equal", 20, 22),
    Sketcher.Constraint("Equal", 22, 29),
    Sketcher.Constraint("Equal", 29, 31),
    Sketcher.Constraint("Equal", 31, 33),
    Sketcher.Constraint("Equal", 33, 35),
    Sketcher.Constraint("Equal", 35, 41),
    Sketcher.Constraint("Equal", 41, 43),
    Sketcher.Constraint("Equal", 43, 45),
    Sketcher.Constraint("Equal", 45, 47),
    Sketcher.Constraint("PointOnObject", 12, 2, -1),
    Sketcher.Constraint("PointOnObject", 24, 2, -1),
    Sketcher.Constraint("Horizontal", 22, 3, 29, 3),
    Sketcher.Constraint("Horizontal", 18, 3, 31, 3),
    Sketcher.Constraint("Horizontal", 10, 3, 41, 3),
    Sketcher.Constraint("Horizontal", 6, 3, 43, 3),
    Sketcher.Constraint("Horizontal", 15, 2, 26, 2),
    Sketcher.Constraint("Horizontal", 1, 2, 36, 2),
    Sketcher.Constraint("Horizontal", 3, 2, 38, 2),
    Sketcher.Constraint("Vertical", 10, 3, 16, 3),
    Sketcher.Constraint("Vertical", 8, 3, 18, 3),
    Sketcher.Constraint("Vertical", 31, 3, 41, 3),
    Sketcher.Constraint("Vertical", 35, 3, 45, 3),
    Sketcher.Constraint("Vertical", 3, 2, 12, 2),
    Sketcher.Constraint("Vertical", 2, 2, 13, 2),
    Sketcher.Constraint("Vertical", 27, 2, 36, 2),
    Sketcher.Constraint("Vertical", 26, 2, 37, 2),
    Sketcher.Constraint("Equal", 15, 25),
    Sketcher.Constraint("Equal", 21, 28),
    Sketcher.Constraint("Equal", 39, 0),
    Sketcher.Constraint("Equal", 44, 7),
    Sketcher.Constraint("Equal", 2, 12),
    Sketcher.Constraint("Equal", 11, 19),
    Sketcher.Constraint("Radius", 4, Q("0.1 in")),
    Sketcher.Constraint("DistanceX", 1, 1, 1, 2, Q("1.5 in")),
    Sketcher.Constraint("DistanceX", 0, 2, -1, 1, Q("27 in")),
    Sketcher.Constraint("DistanceX", 25, 2, -1, 1, Q("51 in")),
    Sketcher.Constraint("DistanceX", 5, 1, 5, 2, Q("27.62 mm")),
    Sketcher.Constraint("DistanceX", 4, 3, -1, 1, Q("680.56 mm")),
    Sketcher.Constraint("DistanceY", 4, 3, -1, 1, Q("5394.76 mm")),
    Sketcher.Constraint("DistanceY", 16, 3, -1, 1, Q("32.86 mm")),
    Sketcher.Constraint("DistanceX", 29, 3, -1, 1, Q("1328.26 mm")),
    Sketcher.Constraint("DistanceY", 0, 2, -1, 1, Q("5361.9 mm")),
])
pad6 = body.newObject("PartDesign::Pad", "Pad005")
pad6.Profile = sketch6
pad6.Length = Q("15.66 in")
pad6.Reversed = True

sketch7 = body.newObject("Sketcher::SketchObject", "Sketch006")
sketch7.AttachmentSupport = (doc.getObject("YZ_Plane"), [""])
sketch7.MapMode = "FlatFace"
sketch7.AttachmentOffset = App.Placement(Vector(0, 0, -1.5 * 25.4), App.Rotation())
add_polygon(sketch7, [(474, -38.1), (435.9, -38.1), (435.9, 0), (474, 0)])
sketch7.addGeometry(Part.ArcOfCircle(Part.Circle(Vector(441.1, -32.9, 0), Vector(0, 0, 1), 2.5), math.radians(-180), math.radians(-90)), False)
sketch7.addGeometry(Part.LineSegment(Vector(441.1, -35.4, 0), Vector(468.7, -35.4, 0)), False)
sketch7.addGeometry(Part.ArcOfCircle(Part.Circle(Vector(468.7, -32.9, 0), Vector(0, 0, 1), 2.5), math.radians(-90), math.radians(0)), False)
sketch7.addGeometry(Part.LineSegment(Vector(471.3, -32.9, 0), Vector(471.3, -5.2, 0)), False)
sketch7.addGeometry(Part.ArcOfCircle(Part.Circle(Vector(468.7, -5.2, 0), Vector(0, 0, 1), 2.5), math.radians(0), math.radians(90)), False)
sketch7.addGeometry(Part.LineSegment(Vector(468.7, -2.7, 0), Vector(441.1, -2.7, 0)), False)
sketch7.addGeometry(Part.ArcOfCircle(Part.Circle(Vector(441.1, -5.2, 0), Vector(0, 0, 1), 2.5), math.radians(90), math.radians(180)), False)
sketch7.addGeometry(Part.LineSegment(Vector(438.6, -5.2, 0), Vector(438.6, -32.9, 0)), False)
add_polygon(sketch7, [(474, -5400), (435.9, -5400), (435.9, -5361.9), (474, -5361.9)])
sketch7.addGeometry(Part.ArcOfCircle(Part.Circle(Vector(441.1, -5367.1, 0), Vector(0, 0, 1), 2.5), math.radians(90), math.radians(180)), False)
sketch7.addGeometry(Part.LineSegment(Vector(438.6, -5367.1, 0), Vector(438.6, -5394.8, 0)), False)
sketch7.addGeometry(Part.ArcOfCircle(Part.Circle(Vector(441.1, -5394.8, 0), Vector(0, 0, 1), 2.5), math.radians(-180), math.radians(-90)), False)
sketch7.addGeometry(Part.LineSegment(Vector(441.1, -5397.3, 0), Vector(468.7, -5397.3, 0)), False)
sketch7.addGeometry(Part.ArcOfCircle(Part.Circle(Vector(468.7, -5394.8, 0), Vector(0, 0, 1), 2.5), math.radians(-90), math.radians(0)), False)
sketch7.addGeometry(Part.LineSegment(Vector(471.3, -5394.8, 0), Vector(471.3, -5367.1, 0)), False)
sketch7.addGeometry(Part.ArcOfCircle(Part.Circle(Vector(468.7, -5367.1, 0), Vector(0, 0, 1), 2.5), math.radians(0), math.radians(90)), False)
sketch7.addGeometry(Part.LineSegment(Vector(468.7, -5364.6, 0), Vector(441.1, -5364.6, 0)), False)
sketch7.addConstraint([
    Sketcher.Constraint("Tangent", 4, 2, 5, 1),
    Sketcher.Constraint("Tangent", 5, 2, 6, 1),
    Sketcher.Constraint("Tangent", 6, 2, 7, 1),
    Sketcher.Constraint("Tangent", 7, 2, 8, 1),
    Sketcher.Constraint("Tangent", 8, 2, 9, 1),
    Sketcher.Constraint("Tangent", 9, 2, 10, 1),
    Sketcher.Constraint("Tangent", 10, 2, 11, 1),
    Sketcher.Constraint("Tangent", 11, 2, 4, 1),
    Sketcher.Constraint("Tangent", 16, 2, 17, 1),
    Sketcher.Constraint("Tangent", 17, 2, 18, 1),
    Sketcher.Constraint("Tangent", 18, 2, 19, 1),
    Sketcher.Constraint("Tangent", 19, 2, 20, 1),
    Sketcher.Constraint("Tangent", 20, 2, 21, 1),
    Sketcher.Constraint("Tangent", 21, 2, 22, 1),
    Sketcher.Constraint("Tangent", 22, 2, 23, 1),
    Sketcher.Constraint("Tangent", 23, 2, 16, 1),
    Sketcher.Constraint("Horizontal", 0),
    Sketcher.Constraint("Vertical", 1),
    Sketcher.Constraint("Horizontal", 2),
    Sketcher.Constraint("Vertical", 3),
    Sketcher.Constraint("Horizontal", 5),
    Sketcher.Constraint("Vertical", 7),
    Sketcher.Constraint("Horizontal", 9),
    Sketcher.Constraint("Vertical", 11),
    Sketcher.Constraint("Horizontal", 12),
    Sketcher.Constraint("Vertical", 13),
    Sketcher.Constraint("Horizontal", 14),
    Sketcher.Constraint("Vertical", 15),
    Sketcher.Constraint("Vertical", 17),
    Sketcher.Constraint("Horizontal", 19),
    Sketcher.Constraint("Vertical", 21),
    Sketcher.Constraint("Horizontal", 23),
    Sketcher.Constraint("Equal", 4, 6),
    Sketcher.Constraint("Equal", 6, 8),
    Sketcher.Constraint("Equal", 8, 10),
    Sketcher.Constraint("Equal", 10, 16),
    Sketcher.Constraint("Equal", 16, 18),
    Sketcher.Constraint("Equal", 18, 20),
    Sketcher.Constraint("Equal", 20, 22),
    Sketcher.Constraint("PointOnObject", 1, 2, -1),
    Sketcher.Constraint("Vertical", 10, 3, 16, 3),
    Sketcher.Constraint("Vertical", 8, 3, 20, 3),
    Sketcher.Constraint("Vertical", 1, 2, 12, 2),
    Sketcher.Constraint("Vertical", 3, 2, 14, 2),
    Sketcher.Constraint("Equal", 14, 1),
    Sketcher.Constraint("Equal", 23, 7),
    Sketcher.Constraint("Equal", 3, 13),
    Sketcher.Constraint("Equal", 11, 17),
    Sketcher.Constraint("Radius", 4, Q("0.1 in")),
    Sketcher.Constraint("DistanceX", 0, 2, 0, 1, Q("1.5 in")),
    Sketcher.Constraint("DistanceX", -1, 1, 0, 2, Q("17.16 in")),
    Sketcher.Constraint("DistanceX", 5, 1, 5, 2, Q("27.62 mm")),
    Sketcher.Constraint("DistanceX", -1, 1, 4, 3, Q("441.104 mm")),
    Sketcher.Constraint("DistanceY", 4, 3, -1, 1, Q("32.86 mm")),
    Sketcher.Constraint("DistanceY", 16, 3, -1, 1, Q("5367.14 mm")),
    Sketcher.Constraint("DistanceY", 12, 2, -1, 1, Q("5400 mm")),
])
pad7 = body.newObject("PartDesign::Pad", "Pad006")
pad7.Profile = sketch7
pad7.Length = Q("51 in")
pad7.Reversed = True

doc.recompute()
